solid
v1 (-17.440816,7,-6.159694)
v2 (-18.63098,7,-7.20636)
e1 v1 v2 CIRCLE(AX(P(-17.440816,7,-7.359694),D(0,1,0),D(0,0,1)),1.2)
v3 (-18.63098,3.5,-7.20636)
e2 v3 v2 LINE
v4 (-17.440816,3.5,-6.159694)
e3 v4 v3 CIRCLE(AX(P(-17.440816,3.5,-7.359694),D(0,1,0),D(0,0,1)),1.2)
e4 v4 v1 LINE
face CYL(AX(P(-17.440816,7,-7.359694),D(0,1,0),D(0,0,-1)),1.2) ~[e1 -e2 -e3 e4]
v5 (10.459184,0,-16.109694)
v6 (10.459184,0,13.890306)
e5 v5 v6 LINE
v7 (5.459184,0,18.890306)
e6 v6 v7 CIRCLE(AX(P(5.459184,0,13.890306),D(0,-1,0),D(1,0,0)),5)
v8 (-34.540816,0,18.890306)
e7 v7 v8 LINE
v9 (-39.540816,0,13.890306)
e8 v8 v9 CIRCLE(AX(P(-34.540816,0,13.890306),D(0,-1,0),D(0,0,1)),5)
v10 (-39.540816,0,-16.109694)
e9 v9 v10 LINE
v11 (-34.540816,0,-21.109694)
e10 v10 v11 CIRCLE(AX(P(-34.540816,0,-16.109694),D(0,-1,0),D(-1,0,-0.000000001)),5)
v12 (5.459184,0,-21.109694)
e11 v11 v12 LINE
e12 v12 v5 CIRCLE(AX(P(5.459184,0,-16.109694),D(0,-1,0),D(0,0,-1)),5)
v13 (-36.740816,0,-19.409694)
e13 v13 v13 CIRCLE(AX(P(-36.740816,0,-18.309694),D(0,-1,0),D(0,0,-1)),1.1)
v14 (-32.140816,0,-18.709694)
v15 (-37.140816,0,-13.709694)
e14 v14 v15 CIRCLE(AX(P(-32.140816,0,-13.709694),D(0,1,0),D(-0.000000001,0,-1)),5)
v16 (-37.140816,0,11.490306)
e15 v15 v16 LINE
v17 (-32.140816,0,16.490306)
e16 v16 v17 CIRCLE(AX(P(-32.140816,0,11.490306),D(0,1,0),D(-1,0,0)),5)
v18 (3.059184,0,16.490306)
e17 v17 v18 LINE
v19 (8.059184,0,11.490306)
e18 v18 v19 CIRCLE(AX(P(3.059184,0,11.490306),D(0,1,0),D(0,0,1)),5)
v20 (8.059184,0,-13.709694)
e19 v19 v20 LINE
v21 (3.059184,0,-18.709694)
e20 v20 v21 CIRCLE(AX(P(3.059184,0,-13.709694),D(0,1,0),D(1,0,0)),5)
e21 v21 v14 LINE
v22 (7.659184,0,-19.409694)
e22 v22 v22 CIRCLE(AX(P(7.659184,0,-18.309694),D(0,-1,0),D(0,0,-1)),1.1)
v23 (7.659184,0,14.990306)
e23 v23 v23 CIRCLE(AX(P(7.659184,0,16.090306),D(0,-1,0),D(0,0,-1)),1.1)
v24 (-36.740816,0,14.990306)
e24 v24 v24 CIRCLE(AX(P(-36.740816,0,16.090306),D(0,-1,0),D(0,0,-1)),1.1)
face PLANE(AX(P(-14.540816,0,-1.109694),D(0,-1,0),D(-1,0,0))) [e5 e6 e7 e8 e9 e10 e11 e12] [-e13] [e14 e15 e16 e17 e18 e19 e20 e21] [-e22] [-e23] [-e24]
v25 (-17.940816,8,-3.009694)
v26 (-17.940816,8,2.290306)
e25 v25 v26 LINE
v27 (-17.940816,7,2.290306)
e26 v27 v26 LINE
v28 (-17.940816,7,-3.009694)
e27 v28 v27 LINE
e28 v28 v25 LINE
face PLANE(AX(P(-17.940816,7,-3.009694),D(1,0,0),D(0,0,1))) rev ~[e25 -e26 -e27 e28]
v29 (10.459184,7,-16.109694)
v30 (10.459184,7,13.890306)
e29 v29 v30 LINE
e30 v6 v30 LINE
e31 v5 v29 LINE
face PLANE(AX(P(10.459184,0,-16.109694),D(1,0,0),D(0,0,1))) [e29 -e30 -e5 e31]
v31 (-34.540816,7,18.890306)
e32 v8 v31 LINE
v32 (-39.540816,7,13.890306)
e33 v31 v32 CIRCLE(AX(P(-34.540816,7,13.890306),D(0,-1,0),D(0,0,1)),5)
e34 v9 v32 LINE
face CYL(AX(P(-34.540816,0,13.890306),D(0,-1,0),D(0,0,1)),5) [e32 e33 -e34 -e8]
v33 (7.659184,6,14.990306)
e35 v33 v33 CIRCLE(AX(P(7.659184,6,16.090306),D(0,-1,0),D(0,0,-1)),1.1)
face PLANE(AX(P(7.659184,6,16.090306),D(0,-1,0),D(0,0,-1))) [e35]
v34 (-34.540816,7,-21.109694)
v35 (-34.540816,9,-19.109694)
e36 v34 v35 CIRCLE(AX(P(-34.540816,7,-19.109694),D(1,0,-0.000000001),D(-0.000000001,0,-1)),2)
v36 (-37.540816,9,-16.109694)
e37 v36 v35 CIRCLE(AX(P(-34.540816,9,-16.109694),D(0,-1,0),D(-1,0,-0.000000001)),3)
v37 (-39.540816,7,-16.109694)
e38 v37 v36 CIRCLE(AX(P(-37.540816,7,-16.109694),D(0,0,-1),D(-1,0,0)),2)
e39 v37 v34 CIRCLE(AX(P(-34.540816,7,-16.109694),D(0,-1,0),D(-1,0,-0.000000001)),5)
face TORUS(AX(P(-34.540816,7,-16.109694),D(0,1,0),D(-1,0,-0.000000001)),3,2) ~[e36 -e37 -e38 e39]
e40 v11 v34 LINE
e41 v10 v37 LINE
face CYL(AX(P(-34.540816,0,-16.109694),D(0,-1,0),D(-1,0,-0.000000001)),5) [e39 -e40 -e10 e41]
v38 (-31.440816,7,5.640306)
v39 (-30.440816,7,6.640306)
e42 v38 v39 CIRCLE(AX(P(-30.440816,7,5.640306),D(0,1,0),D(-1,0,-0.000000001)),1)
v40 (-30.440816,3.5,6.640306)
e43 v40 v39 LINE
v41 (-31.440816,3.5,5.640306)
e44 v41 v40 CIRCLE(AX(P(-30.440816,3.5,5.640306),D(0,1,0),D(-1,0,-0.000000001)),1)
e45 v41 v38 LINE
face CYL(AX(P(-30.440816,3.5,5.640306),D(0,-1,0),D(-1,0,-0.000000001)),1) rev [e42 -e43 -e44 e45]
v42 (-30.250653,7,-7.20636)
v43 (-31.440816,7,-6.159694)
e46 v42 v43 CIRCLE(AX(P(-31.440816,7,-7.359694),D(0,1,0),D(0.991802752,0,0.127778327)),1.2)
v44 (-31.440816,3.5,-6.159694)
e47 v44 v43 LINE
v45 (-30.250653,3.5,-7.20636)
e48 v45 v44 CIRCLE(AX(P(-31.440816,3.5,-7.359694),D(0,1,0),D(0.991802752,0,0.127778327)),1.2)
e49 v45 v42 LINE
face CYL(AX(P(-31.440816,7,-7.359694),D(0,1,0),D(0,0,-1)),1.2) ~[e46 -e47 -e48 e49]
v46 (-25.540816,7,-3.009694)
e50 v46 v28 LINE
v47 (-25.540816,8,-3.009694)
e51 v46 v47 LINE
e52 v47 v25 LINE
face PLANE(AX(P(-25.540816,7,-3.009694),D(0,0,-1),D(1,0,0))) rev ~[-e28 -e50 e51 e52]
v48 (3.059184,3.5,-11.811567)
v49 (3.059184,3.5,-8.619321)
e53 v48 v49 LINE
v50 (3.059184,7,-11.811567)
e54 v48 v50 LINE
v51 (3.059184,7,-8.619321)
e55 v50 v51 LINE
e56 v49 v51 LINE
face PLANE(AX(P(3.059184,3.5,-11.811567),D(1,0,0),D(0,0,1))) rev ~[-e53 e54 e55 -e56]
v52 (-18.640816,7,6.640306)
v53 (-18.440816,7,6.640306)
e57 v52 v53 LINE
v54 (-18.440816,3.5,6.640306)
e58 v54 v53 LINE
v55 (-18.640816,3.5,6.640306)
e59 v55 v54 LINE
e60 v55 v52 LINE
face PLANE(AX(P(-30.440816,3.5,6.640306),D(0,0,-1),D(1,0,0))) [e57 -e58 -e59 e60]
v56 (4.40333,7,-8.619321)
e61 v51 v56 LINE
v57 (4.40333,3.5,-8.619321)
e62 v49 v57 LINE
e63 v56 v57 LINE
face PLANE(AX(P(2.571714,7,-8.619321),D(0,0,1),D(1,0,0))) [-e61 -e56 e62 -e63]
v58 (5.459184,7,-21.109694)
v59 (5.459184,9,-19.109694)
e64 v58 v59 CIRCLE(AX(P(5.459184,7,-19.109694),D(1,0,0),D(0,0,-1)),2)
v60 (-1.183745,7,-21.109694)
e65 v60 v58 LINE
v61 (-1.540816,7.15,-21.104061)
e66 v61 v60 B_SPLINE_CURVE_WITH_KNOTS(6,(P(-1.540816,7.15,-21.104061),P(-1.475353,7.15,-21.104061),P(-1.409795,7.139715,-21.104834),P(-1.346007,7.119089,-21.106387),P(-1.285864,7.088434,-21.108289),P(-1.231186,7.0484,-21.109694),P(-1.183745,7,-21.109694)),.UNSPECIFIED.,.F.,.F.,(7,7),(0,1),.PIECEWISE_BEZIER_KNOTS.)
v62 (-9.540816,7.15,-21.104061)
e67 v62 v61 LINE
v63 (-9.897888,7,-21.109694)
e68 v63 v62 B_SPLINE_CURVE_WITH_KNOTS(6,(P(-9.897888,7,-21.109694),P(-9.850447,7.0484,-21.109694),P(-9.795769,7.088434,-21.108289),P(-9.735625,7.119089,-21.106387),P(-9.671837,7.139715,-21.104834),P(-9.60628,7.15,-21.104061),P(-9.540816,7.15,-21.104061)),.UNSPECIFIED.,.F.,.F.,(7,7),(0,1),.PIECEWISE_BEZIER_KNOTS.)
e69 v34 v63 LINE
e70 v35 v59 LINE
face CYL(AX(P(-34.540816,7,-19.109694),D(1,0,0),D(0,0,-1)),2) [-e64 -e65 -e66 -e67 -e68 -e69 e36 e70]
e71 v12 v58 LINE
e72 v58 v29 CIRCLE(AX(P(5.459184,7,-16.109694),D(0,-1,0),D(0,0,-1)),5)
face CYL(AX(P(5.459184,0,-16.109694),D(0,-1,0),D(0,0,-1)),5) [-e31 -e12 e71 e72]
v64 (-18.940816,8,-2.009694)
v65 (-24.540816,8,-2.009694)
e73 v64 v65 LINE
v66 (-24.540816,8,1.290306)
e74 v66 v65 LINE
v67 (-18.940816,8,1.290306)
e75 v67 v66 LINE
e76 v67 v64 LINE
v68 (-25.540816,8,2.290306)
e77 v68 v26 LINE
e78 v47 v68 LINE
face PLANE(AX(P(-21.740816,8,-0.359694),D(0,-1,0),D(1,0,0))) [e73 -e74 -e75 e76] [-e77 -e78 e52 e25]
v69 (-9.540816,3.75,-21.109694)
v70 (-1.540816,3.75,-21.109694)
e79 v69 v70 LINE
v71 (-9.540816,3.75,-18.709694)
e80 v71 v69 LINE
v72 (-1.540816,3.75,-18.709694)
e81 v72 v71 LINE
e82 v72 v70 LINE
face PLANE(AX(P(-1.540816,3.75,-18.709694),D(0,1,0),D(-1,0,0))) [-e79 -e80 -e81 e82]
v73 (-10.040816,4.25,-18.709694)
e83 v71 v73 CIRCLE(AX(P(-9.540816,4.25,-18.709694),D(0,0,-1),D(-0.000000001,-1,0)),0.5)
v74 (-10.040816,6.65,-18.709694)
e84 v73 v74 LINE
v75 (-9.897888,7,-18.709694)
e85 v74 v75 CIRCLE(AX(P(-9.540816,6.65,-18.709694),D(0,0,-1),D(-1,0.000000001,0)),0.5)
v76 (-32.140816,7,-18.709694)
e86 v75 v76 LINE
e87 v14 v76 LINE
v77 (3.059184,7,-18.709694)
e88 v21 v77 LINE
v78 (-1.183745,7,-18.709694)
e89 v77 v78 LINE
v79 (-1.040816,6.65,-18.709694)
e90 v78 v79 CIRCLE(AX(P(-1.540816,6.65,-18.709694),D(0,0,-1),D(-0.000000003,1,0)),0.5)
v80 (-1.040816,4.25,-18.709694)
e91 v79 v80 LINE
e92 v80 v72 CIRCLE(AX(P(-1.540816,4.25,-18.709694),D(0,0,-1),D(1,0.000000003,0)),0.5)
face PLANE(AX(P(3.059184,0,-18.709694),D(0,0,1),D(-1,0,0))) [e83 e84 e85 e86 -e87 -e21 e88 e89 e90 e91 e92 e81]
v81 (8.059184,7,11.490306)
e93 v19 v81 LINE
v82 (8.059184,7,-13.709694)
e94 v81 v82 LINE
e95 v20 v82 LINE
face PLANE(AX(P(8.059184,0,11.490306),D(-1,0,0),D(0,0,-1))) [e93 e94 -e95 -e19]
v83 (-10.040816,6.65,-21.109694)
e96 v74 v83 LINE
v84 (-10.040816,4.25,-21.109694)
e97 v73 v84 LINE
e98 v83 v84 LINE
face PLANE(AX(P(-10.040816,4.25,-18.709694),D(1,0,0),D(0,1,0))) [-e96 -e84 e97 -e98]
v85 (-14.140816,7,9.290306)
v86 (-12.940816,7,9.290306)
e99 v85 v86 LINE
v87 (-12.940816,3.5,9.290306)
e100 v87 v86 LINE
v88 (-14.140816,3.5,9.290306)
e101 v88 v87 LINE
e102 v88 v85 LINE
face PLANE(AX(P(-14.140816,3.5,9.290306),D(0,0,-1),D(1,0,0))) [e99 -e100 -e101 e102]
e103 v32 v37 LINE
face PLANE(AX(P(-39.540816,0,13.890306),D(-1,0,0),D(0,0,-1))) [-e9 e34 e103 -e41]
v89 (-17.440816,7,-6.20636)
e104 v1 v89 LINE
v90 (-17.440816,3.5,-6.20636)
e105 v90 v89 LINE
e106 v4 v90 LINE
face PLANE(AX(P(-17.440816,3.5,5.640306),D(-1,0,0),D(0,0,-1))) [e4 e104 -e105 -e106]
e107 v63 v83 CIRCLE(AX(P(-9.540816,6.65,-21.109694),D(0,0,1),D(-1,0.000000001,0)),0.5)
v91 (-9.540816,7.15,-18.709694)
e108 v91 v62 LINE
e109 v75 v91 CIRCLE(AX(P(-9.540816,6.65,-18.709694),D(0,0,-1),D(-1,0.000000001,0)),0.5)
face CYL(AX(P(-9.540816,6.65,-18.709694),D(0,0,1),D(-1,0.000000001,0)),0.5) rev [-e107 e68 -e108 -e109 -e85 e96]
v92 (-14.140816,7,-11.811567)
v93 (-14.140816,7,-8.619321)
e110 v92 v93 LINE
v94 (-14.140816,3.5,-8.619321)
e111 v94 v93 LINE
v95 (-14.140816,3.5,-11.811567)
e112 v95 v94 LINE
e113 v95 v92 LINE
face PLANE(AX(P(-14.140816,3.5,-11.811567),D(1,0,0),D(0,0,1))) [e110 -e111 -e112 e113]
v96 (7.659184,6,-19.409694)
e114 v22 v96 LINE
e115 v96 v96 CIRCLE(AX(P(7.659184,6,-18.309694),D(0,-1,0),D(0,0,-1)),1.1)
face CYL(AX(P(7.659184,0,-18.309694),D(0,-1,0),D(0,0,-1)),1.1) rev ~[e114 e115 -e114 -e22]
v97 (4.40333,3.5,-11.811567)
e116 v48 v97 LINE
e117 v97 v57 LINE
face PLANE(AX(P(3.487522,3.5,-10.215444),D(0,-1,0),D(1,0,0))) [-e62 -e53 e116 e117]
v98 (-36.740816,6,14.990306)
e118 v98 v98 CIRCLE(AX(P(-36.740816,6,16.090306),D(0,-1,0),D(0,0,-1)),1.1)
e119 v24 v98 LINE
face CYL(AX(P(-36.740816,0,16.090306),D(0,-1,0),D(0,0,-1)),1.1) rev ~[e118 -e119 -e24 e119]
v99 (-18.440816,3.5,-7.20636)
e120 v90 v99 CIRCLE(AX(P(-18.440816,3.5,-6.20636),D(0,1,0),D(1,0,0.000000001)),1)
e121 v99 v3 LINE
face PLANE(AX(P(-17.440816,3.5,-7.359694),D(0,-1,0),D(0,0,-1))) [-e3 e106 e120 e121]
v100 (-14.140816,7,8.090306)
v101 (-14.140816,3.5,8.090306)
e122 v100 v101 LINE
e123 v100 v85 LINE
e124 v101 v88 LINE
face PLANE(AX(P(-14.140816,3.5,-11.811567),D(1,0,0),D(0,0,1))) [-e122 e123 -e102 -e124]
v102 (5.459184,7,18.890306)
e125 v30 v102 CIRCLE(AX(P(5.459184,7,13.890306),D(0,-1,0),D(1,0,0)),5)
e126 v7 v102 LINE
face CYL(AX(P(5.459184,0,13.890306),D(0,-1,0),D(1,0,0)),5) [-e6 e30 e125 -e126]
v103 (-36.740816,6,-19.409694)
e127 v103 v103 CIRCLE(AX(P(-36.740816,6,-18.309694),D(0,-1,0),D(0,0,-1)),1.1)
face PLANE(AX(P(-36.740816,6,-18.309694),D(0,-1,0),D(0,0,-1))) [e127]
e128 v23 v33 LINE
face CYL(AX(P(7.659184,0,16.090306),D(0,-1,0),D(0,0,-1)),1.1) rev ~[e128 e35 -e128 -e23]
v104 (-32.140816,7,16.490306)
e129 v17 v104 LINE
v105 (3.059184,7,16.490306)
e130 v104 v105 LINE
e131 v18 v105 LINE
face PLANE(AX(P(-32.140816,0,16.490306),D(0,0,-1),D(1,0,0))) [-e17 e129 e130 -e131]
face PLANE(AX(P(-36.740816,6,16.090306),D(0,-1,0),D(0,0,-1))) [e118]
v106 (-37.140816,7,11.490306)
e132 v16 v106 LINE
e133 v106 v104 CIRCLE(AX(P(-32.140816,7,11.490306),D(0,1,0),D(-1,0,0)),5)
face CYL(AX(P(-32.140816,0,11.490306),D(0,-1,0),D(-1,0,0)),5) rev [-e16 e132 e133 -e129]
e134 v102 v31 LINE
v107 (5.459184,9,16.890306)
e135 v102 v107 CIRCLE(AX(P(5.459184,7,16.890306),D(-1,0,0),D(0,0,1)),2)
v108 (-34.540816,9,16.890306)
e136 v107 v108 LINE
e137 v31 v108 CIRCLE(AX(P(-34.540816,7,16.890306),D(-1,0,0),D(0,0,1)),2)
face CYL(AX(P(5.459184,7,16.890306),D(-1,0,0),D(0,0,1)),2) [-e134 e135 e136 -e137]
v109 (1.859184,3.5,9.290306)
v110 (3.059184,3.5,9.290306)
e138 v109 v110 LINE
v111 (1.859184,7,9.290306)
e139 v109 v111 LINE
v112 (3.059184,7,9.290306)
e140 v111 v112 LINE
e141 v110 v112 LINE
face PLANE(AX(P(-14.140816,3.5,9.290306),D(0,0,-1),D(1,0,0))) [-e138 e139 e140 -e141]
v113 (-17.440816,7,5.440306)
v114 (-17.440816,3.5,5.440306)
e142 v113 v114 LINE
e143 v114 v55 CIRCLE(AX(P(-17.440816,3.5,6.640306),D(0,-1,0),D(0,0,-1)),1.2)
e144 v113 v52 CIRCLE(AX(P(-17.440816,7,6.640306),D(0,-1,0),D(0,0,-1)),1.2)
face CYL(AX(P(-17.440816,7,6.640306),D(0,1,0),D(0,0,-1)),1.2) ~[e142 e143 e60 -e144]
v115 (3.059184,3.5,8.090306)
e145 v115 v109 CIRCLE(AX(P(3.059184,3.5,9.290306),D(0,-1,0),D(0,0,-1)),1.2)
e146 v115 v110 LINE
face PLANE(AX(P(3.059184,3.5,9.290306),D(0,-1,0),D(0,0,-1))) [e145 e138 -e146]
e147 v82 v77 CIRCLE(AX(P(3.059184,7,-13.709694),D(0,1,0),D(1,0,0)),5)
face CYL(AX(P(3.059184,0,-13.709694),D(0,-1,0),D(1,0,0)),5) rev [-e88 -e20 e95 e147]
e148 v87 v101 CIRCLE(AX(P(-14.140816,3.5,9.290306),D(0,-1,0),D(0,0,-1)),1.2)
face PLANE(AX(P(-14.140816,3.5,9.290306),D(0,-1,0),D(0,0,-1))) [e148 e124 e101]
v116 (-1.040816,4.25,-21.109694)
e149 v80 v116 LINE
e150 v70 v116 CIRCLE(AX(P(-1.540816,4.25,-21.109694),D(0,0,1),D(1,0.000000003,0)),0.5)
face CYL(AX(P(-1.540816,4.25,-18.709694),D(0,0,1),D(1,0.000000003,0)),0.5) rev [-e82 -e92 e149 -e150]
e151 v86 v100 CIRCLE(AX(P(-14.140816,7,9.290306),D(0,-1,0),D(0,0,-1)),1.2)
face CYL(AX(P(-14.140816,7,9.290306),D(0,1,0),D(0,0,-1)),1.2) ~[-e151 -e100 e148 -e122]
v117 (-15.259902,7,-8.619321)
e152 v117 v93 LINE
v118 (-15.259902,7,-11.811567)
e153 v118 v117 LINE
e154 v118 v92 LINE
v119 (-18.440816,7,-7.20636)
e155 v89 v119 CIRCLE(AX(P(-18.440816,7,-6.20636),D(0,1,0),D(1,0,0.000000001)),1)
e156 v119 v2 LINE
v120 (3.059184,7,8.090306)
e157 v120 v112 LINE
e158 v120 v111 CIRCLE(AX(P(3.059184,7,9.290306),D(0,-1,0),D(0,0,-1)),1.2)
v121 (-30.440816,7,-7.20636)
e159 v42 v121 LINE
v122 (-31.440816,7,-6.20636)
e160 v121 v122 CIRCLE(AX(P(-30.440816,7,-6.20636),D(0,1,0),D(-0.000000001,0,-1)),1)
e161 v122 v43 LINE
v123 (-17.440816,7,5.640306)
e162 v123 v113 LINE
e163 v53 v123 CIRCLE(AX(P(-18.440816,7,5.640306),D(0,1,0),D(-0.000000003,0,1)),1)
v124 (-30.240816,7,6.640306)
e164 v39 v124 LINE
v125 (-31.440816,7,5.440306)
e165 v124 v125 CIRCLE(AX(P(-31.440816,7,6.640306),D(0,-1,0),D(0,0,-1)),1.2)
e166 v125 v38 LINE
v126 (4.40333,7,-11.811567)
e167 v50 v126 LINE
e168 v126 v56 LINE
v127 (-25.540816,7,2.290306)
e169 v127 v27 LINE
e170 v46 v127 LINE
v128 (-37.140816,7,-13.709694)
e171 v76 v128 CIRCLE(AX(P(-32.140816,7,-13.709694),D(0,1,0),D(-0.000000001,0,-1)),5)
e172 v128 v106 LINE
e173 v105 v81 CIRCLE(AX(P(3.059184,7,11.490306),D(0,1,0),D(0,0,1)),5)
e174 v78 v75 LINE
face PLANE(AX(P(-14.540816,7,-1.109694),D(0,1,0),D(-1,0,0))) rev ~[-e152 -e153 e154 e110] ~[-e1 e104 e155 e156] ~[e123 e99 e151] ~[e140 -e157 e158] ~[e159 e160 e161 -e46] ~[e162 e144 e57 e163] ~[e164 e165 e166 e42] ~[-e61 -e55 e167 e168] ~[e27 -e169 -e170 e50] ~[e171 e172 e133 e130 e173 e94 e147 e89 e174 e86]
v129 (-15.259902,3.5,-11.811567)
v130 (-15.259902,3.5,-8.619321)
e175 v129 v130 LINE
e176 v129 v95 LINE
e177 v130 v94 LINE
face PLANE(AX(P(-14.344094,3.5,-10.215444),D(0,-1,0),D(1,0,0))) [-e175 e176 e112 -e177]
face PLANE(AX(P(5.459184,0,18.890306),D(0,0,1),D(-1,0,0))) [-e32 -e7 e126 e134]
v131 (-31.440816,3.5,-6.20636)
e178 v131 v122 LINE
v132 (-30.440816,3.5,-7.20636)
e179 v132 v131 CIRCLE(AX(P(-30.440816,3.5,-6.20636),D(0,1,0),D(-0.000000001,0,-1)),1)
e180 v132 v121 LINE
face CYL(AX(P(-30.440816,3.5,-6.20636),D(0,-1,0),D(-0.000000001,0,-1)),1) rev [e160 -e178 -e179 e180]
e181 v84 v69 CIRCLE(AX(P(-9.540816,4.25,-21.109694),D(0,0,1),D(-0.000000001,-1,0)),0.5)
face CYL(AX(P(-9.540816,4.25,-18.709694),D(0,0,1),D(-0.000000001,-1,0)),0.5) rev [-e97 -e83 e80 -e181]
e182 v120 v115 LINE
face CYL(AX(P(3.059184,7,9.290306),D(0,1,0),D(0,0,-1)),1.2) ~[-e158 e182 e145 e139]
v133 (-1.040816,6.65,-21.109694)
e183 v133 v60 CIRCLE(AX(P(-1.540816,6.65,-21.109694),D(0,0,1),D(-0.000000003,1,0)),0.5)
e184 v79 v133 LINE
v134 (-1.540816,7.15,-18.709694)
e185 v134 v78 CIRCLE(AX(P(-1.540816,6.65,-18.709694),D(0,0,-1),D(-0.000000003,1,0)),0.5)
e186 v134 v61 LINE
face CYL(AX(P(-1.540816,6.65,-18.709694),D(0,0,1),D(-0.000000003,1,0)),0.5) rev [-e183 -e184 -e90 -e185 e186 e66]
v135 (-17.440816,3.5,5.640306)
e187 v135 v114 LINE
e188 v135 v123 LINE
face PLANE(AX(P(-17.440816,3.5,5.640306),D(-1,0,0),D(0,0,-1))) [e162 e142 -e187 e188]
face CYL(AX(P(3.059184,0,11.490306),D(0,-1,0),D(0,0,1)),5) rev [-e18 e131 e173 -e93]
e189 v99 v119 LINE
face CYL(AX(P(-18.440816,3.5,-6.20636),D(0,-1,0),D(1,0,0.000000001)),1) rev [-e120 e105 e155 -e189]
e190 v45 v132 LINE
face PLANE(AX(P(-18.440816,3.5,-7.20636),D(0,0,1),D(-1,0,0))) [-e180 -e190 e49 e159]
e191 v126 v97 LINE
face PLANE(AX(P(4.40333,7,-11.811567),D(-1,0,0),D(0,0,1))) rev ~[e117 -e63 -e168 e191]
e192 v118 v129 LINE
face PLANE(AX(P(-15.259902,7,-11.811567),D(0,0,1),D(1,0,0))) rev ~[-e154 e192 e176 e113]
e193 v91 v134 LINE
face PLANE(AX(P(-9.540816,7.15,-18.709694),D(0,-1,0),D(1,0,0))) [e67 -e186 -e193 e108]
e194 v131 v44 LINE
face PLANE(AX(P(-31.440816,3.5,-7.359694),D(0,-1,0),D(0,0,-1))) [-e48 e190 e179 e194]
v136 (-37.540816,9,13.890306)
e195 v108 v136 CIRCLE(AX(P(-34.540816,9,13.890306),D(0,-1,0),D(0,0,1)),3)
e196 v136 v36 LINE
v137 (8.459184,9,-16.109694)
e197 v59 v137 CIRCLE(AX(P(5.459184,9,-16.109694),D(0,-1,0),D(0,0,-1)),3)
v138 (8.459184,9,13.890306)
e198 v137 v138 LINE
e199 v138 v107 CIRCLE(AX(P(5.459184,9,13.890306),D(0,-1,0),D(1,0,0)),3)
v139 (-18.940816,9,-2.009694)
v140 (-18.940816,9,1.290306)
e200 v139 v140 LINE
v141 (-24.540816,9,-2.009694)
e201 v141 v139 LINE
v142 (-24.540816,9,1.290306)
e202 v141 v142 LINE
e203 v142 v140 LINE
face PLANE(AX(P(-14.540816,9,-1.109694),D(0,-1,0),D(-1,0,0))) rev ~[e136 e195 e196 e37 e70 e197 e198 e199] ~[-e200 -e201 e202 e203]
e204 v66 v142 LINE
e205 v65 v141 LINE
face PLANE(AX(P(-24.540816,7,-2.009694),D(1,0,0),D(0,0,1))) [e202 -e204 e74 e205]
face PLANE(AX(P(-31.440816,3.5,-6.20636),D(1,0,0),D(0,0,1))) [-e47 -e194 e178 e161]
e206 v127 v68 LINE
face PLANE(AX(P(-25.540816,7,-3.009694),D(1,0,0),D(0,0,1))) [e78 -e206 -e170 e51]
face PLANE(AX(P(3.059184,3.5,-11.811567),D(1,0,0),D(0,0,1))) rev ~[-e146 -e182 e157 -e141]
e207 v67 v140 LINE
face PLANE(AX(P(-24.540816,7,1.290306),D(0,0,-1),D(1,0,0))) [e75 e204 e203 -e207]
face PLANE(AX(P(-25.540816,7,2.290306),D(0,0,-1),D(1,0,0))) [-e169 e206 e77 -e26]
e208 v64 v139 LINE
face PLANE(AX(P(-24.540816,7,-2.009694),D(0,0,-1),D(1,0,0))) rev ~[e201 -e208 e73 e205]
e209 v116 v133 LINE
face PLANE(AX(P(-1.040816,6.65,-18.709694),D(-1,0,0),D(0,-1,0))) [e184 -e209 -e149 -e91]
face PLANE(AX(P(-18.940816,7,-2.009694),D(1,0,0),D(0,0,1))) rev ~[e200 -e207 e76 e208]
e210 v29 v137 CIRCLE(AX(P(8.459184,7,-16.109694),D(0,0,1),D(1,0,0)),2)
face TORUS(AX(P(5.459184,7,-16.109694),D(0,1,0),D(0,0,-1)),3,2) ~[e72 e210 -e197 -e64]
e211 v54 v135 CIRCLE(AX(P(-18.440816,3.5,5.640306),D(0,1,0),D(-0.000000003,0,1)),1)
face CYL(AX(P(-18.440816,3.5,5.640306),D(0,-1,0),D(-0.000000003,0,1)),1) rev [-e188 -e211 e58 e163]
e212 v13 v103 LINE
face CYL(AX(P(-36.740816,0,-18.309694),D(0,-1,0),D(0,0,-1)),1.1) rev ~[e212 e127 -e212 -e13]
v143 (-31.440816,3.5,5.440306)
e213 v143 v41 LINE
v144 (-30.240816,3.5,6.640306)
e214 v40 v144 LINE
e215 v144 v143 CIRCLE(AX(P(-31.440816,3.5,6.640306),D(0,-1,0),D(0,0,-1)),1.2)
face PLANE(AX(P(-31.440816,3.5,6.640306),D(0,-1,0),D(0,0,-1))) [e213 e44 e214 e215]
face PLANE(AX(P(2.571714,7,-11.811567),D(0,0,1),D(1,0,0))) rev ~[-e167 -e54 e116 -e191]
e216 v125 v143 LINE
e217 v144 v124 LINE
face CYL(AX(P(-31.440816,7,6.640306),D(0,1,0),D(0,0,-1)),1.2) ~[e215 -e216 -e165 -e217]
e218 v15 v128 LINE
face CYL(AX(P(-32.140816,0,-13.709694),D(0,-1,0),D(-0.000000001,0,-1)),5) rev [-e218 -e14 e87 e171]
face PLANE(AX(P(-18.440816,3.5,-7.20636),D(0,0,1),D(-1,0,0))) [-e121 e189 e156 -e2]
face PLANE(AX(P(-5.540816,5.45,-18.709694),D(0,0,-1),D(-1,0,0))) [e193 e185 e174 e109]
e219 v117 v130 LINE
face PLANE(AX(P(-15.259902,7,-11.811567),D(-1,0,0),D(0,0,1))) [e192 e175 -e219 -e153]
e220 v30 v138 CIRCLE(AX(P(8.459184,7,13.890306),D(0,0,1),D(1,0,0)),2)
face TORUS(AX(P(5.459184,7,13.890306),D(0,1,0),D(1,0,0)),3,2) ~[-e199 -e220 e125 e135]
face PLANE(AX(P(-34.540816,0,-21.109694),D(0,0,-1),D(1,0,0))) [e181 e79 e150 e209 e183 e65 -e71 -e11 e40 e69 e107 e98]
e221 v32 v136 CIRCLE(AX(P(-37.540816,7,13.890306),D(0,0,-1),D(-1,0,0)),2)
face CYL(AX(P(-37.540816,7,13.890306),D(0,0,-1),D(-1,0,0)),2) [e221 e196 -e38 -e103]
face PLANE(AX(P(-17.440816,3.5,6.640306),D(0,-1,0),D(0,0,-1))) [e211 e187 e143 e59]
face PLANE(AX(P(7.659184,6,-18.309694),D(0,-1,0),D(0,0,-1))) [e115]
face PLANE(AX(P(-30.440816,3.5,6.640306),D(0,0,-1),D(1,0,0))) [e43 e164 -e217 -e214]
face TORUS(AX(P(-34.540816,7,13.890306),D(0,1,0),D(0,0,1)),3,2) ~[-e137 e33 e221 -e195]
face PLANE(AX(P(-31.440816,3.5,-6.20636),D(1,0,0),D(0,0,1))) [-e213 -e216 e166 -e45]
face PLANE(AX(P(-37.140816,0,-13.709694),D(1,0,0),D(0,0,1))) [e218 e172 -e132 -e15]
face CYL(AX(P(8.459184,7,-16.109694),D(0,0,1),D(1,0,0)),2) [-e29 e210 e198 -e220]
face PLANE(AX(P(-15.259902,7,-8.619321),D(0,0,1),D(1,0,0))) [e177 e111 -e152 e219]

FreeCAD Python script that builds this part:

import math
import FreeCAD as App
import Part
import Sketcher
Q = App.Units.Quantity


def edges_at(feature, points):
    """Names of the edges that pass closest to the given points."""
    edges = feature.Shape.Edges
    near = lambda p: min(range(len(edges)), key=lambda i: edges[i].distToShape(Part.Vertex(*p))[0])
    return sorted({f"Edge{near(p) + 1}" for p in points})

doc = App.newDocument("Part")
params = doc.addObject("Spreadsheet::Sheet", "Params")
for row, (alias, value) in enumerate([
    ("sketch1_radius", "5 mm"),
    ("sketch1_width", "40 mm"),
    ("sketch1_height", "30 mm"),
    ("pad1_length", "9 mm"),
    ("fillet_radius", "2 mm"),
    ("sketch2_radius", "5 mm"),
    ("sketch2_width", "35.2 mm"),
    ("sketch2_height", "25.2 mm"),
    ("pocket1_length", "7 mm"),
    ("sketch3_diameter", "2.2 mm"),
    ("pocket2_length", "6 mm"),
    ("sketch4_width", "5.6 mm"),
    ("sketch4_height", "3.3 mm"),
    ("sketch5_width", "7.6 mm"),
    ("sketch5_height", "5.3 mm"),
    ("pocket4_length", "1 mm"),
    ("sketch6_diameter", "2.4 mm"),
    ("pad2_length", "3.5 mm"),
    ("sketch7_radius", "1 mm"),
    ("sketch7_width", "12 mm"),
    ("pocket5_length", "3.5 mm"),
    ("sketch8_diameter", "2.4 mm"),
    ("pad3_length", "3.5 mm"),
    ("sketch9_width", "17.2 mm"),
    ("pocket6_length", "3.5 mm"),
    ("sketch10_radius", "0.5 mm"),
    ("sketch10_width", "8 mm"),
    ("sketch10_height", "2.4 mm"),
    ("pocket7_length", "3.5 mm"),
], start=1):
    params.set(f"A{row}", alias)
    params.set(f"B{row}", "=" + value)
    params.setAlias(f"B{row}", alias)

body = doc.addObject("PartDesign::Body", "Body")

# Sketch on XZ plane
sketch1 = body.newObject("Sketcher::SketchObject", "Sketch")
sketch1.AttachmentSupport = (doc.getObject("XZ_Plane"), [""])
sketch1.MapMode = "FlatFace"
sketch1.addGeometry([
    Part.LineSegment(App.Vector(5, -21, 0), App.Vector(-35, -21, 0)),  # 0
    Part.ArcOfCircle(Part.Circle(App.Vector(-35, -16, 0), App.Vector(0, 0, 1), 5), math.radians(-180), math.radians(-90)),  # 1
    Part.LineSegment(App.Vector(-40, -16, 0), App.Vector(-40, 14, 0)),  # 2
    Part.ArcOfCircle(Part.Circle(App.Vector(-35, 14, 0), App.Vector(0, 0, 1), 5), math.radians(90), math.radians(180)),  # 3
    Part.LineSegment(App.Vector(-35, 19, 0), App.Vector(5, 19, 0)),  # 4
    Part.ArcOfCircle(Part.Circle(App.Vector(5, 14, 0), App.Vector(0, 0, 1), 5), math.radians(0), math.radians(90)),  # 5
    Part.LineSegment(App.Vector(10, 14, 0), App.Vector(10, -16, 0)),  # 6
    Part.ArcOfCircle(Part.Circle(App.Vector(5, -16, 0), App.Vector(0, 0, 1), 5), math.radians(-90), math.radians(0)),  # 7
], False)
sketch1.addConstraint([
    Sketcher.Constraint("Tangent", 0, 2, 1, 2),
    Sketcher.Constraint("Tangent", 1, 1, 2, 1),
    Sketcher.Constraint("Tangent", 2, 2, 3, 2),
    Sketcher.Constraint("Tangent", 3, 1, 4, 1),
    Sketcher.Constraint("Tangent", 4, 2, 5, 2),
    Sketcher.Constraint("Tangent", 5, 1, 6, 1),
    Sketcher.Constraint("Tangent", 6, 2, 7, 2),
    Sketcher.Constraint("Tangent", 7, 1, 0, 1),
    Sketcher.Constraint("Horizontal", 0),
    Sketcher.Constraint("Vertical", 2),
    Sketcher.Constraint("Horizontal", 4),
    Sketcher.Constraint("Vertical", 6),
    Sketcher.Constraint("Equal", 1, 3),
    Sketcher.Constraint("Equal", 3, 5),
    Sketcher.Constraint("Equal", 5, 7),
    Sketcher.Constraint("Radius", 1, Q("5 mm")),
    Sketcher.Constraint("DistanceX", 0, 2, 0, 1, Q("40 mm")),
    Sketcher.Constraint("DistanceY", 2, 1, 2, 2, Q("30 mm")),
    Sketcher.Constraint("DistanceX", 1, 3, -1, 1, Q("34.540816 mm")),
    Sketcher.Constraint("DistanceY", 1, 3, -1, 1, Q("16.109694 mm")),
])
sketch1.setExpression("Constraints[15]", "Params.sketch1_radius")
sketch1.setExpression("Constraints[16]", "Params.sketch1_width")
sketch1.setExpression("Constraints[17]", "Params.sketch1_height")
pad1 = body.newObject("PartDesign::Pad", "Pad")
pad1.Profile = sketch1
pad1.setExpression("Length", "Params.pad1_length")
pad1.Reversed = True
doc.recompute()

fillet = body.newObject("PartDesign::Fillet", "Fillet")
fillet.Base = (pad1, edges_at(pad1, [
    (8.995, 9, -19.645),
    (-14.541, 9, -21.11),
    (-38.076, 9, -19.645),
    (-39.541, 9, -1.11),
    (-38.076, 9, 17.426),
    (-14.541, 9, 18.89),
    (8.995, 9, 17.426),
    (10.459, 9, -1.11),
]))
fillet.setExpression("Radius", "Params.fillet_radius")

# Sketch on XZ plane
sketch2 = body.newObject("Sketcher::SketchObject", "Sketch001")
sketch2.AttachmentSupport = (doc.getObject("XZ_Plane"), [""])
sketch2.MapMode = "FlatFace"
sketch2.addGeometry([
    Part.LineSegment(App.Vector(3, 16, 0), App.Vector(-32, 16, 0)),  # 0
    Part.ArcOfCircle(Part.Circle(App.Vector(-32, 11, 0), App.Vector(0, 0, 1), 5), math.radians(90), math.radians(180)),  # 1
    Part.LineSegment(App.Vector(-37, 11, 0), App.Vector(-37, -14, 0)),  # 2
    Part.ArcOfCircle(Part.Circle(App.Vector(-32, -14, 0), App.Vector(0, 0, 1), 5), math.radians(-180), math.radians(-90)),  # 3
    Part.LineSegment(App.Vector(-32, -19, 0), App.Vector(3, -19, 0)),  # 4
    Part.ArcOfCircle(Part.Circle(App.Vector(3, -14, 0), App.Vector(0, 0, 1), 5), math.radians(-90), math.radians(0)),  # 5
    Part.LineSegment(App.Vector(8, -14, 0), App.Vector(8, 11, 0)),  # 6
    Part.ArcOfCircle(Part.Circle(App.Vector(3, 11, 0), App.Vector(0, 0, 1), 5), math.radians(0), math.radians(90)),  # 7
], False)
sketch2.addConstraint([
    Sketcher.Constraint("Tangent", 0, 2, 1, 1),
    Sketcher.Constraint("Tangent", 1, 2, 2, 1),
    Sketcher.Constraint("Tangent", 2, 2, 3, 1),
    Sketcher.Constraint("Tangent", 3, 2, 4, 1),
    Sketcher.Constraint("Tangent", 4, 2, 5, 1),
    Sketcher.Constraint("Tangent", 5, 2, 6, 1),
    Sketcher.Constraint("Tangent", 6, 2, 7, 1),
    Sketcher.Constraint("Tangent", 7, 2, 0, 1),
    Sketcher.Constraint("Horizontal", 0),
    Sketcher.Constraint("Vertical", 2),
    Sketcher.Constraint("Horizontal", 4),
    Sketcher.Constraint("Vertical", 6),
    Sketcher.Constraint("Equal", 1, 3),
    Sketcher.Constraint("Equal", 3, 5),
    Sketcher.Constraint("Equal", 5, 7),
    Sketcher.Constraint("Radius", 1, Q("5 mm")),
    Sketcher.Constraint("DistanceX", 0, 2, 0, 1, Q("35.2 mm")),
    Sketcher.Constraint("DistanceY", 2, 2, 2, 1, Q("25.2 mm")),
    Sketcher.Constraint("DistanceX", 1, 3, -1, 1, Q("32.140816 mm")),
    Sketcher.Constraint("DistanceY", -1, 1, 1, 3, Q("11.490306 mm")),
])
sketch2.setExpression("Constraints[15]", "Params.sketch2_radius")
sketch2.setExpression("Constraints[16]", "Params.sketch2_width")
sketch2.setExpression("Constraints[17]", "Params.sketch2_height")
pocket1 = body.newObject("PartDesign::Pocket", "Pocket")
pocket1.Profile = sketch2
pocket1.setExpression("Length", "Params.pocket1_length")

# Sketch on XZ plane
sketch3 = body.newObject("Sketcher::SketchObject", "Sketch002")
sketch3.AttachmentSupport = (doc.getObject("XZ_Plane"), [""])
sketch3.MapMode = "FlatFace"
sketch3.addGeometry([
    Part.Circle(App.Vector(7.7, 16.1, 0), App.Vector(0, 0, 1), 1.1),
    Part.Circle(App.Vector(-36.7, 16.1, 0), App.Vector(0, 0, 1), 1.1),
    Part.Circle(App.Vector(-36.7, -18.3, 0), App.Vector(0, 0, 1), 1.1),
    Part.Circle(App.Vector(7.7, -18.3, 0), App.Vector(0, 0, 1), 1.1),
], False)
sketch3.addConstraint([
    Sketcher.Constraint("Equal", 0, 1),
    Sketcher.Constraint("Equal", 1, 2),
    Sketcher.Constraint("Equal", 2, 3),
    Sketcher.Constraint("Horizontal", 0, 3, 1, 3),
    Sketcher.Constraint("Horizontal", 2, 3, 3, 3),
    Sketcher.Constraint("Vertical", 1, 3, 2, 3),
    Sketcher.Constraint("Vertical", 0, 3, 3, 3),
    Sketcher.Constraint("Diameter", 0, Q("2.2 mm")),
    Sketcher.Constraint("DistanceX", 1, 3, 0, 3, Q("44.4 mm")),
    Sketcher.Constraint("DistanceY", 2, 3, 1, 3, Q("34.4 mm")),
    Sketcher.Constraint("DistanceX", -1, 1, 0, 3, Q("7.659184 mm")),
    Sketcher.Constraint("DistanceY", -1, 1, 0, 3, Q("16.090306 mm")),
])
sketch3.setExpression("Constraints[7]", "Params.sketch3_diameter")
pocket2 = body.newObject("PartDesign::Pocket", "Pocket001")
pocket2.Profile = sketch3
pocket2.setExpression("Length", "Params.pocket2_length")

# Sketch on XZ plane
sketch4 = body.newObject("Sketcher::SketchObject", "Sketch003")
sketch4.AttachmentSupport = (doc.getObject("XZ_Plane"), [""])
sketch4.MapMode = "FlatFace"
sketch4.AttachmentOffset = App.Placement(App.Vector(0, 0, -7), App.Rotation())
sketch4.addGeometry([
    Part.LineSegment(App.Vector(-24.5, 1.3, 0), App.Vector(-24.5, -2, 0)),
    Part.LineSegment(App.Vector(-24.5, -2, 0), App.Vector(-18.9, -2, 0)),
    Part.LineSegment(App.Vector(-18.9, -2, 0), App.Vector(-18.9, 1.3, 0)),
    Part.LineSegment(App.Vector(-18.9, 1.3, 0), App.Vector(-24.5, 1.3, 0)),
], False)
sketch4.addConstraint([
    Sketcher.Constraint("Coincident", 0, 2, 1, 1),
    Sketcher.Constraint("Coincident", 1, 2, 2, 1),
    Sketcher.Constraint("Coincident", 2, 2, 3, 1),
    Sketcher.Constraint("Coincident", 3, 2, 0, 1),
    Sketcher.Constraint("Vertical", 0),
    Sketcher.Constraint("Horizontal", 1),
    Sketcher.Constraint("Vertical", 2),
    Sketcher.Constraint("Horizontal", 3),
    Sketcher.Constraint("DistanceX", 1, 1, 1, 2, Q("5.6 mm")),
    Sketcher.Constraint("DistanceY", 0, 2, 0, 1, Q("3.3 mm")),
    Sketcher.Constraint("DistanceX", 0, 2, -1, 1, Q("24.540816 mm")),
    Sketcher.Constraint("DistanceY", 0, 2, -1, 1, Q("2.009694 mm")),
])
sketch4.setExpression("Constraints[8]", "Params.sketch4_width")
sketch4.setExpression("Constraints[9]", "Params.sketch4_height")
pocket3 = body.newObject("PartDesign::Pocket", "Pocket002")
pocket3.Profile = sketch4
pocket3.Type = "ThroughAll"

# Sketch on XZ plane
sketch5 = body.newObject("Sketcher::SketchObject", "Sketch004")
sketch5.AttachmentSupport = (doc.getObject("XZ_Plane"), [""])
sketch5.MapMode = "FlatFace"
sketch5.AttachmentOffset = App.Placement(App.Vector(0, 0, -7), App.Rotation())
sketch5.addGeometry([
    Part.LineSegment(App.Vector(-26, 2, 0), App.Vector(-26, -3, 0)),
    Part.LineSegment(App.Vector(-26, -3, 0), App.Vector(-18, -3, 0)),
    Part.LineSegment(App.Vector(-18, -3, 0), App.Vector(-18, 2, 0)),
    Part.LineSegment(App.Vector(-18, 2, 0), App.Vector(-26, 2, 0)),
], False)
sketch5.addConstraint([
    Sketcher.Constraint("Coincident", 0, 2, 1, 1),
    Sketcher.Constraint("Coincident", 1, 2, 2, 1),
    Sketcher.Constraint("Coincident", 2, 2, 3, 1),
    Sketcher.Constraint("Coincident", 3, 2, 0, 1),
    Sketcher.Constraint("Vertical", 0),
    Sketcher.Constraint("Horizontal", 1),
    Sketcher.Constraint("Vertical", 2),
    Sketcher.Constraint("Horizontal", 3),
    Sketcher.Constraint("DistanceX", 1, 1, 1, 2, Q("7.6 mm")),
    Sketcher.Constraint("DistanceY", 0, 2, 0, 1, Q("5.3 mm")),
    Sketcher.Constraint("DistanceX", 0, 2, -1, 1, Q("25.540816 mm")),
    Sketcher.Constraint("DistanceY", 0, 2, -1, 1, Q("3.009694 mm")),
])
sketch5.setExpression("Constraints[8]", "Params.sketch5_width")
sketch5.setExpression("Constraints[9]", "Params.sketch5_height")
pocket4 = body.newObject("PartDesign::Pocket", "Pocket003")
pocket4.Profile = sketch5
pocket4.setExpression("Length", "Params.pocket4_length")

# Sketch on XZ plane
sketch6 = body.newObject("Sketcher::SketchObject", "Sketch005")
sketch6.AttachmentSupport = (doc.getObject("XZ_Plane"), [""])
sketch6.MapMode = "FlatFace"
sketch6.AttachmentOffset = App.Placement(App.Vector(0, 0, -7), App.Rotation())
sketch6.addGeometry([
    Part.Circle(App.Vector(-17.4, 6.6, 0), App.Vector(0, 0, 1), 1.2),
    Part.Circle(App.Vector(-31.4, 6.6, 0), App.Vector(0, 0, 1), 1.2),
    Part.Circle(App.Vector(-31.4, -7.4, 0), App.Vector(0, 0, 1), 1.2),
    Part.Circle(App.Vector(-17.4, -7.4, 0), App.Vector(0, 0, 1), 1.2),
], False)
sketch6.addConstraint([
    Sketcher.Constraint("Equal", 0, 1),
    Sketcher.Constraint("Equal", 1, 2),
    Sketcher.Constraint("Equal", 2, 3),
    Sketcher.Constraint("Horizontal", 0, 3, 1, 3),
    Sketcher.Constraint("Horizontal", 2, 3, 3, 3),
    Sketcher.Constraint("Vertical", 1, 3, 2, 3),
    Sketcher.Constraint("Vertical", 0, 3, 3, 3),
    Sketcher.Constraint("Diameter", 0, Q("2.4 mm")),
    Sketcher.Constraint("DistanceX", 1, 3, 0, 3, Q("14 mm")),
    Sketcher.Constraint("DistanceY", 2, 3, 1, 3, Q("14 mm")),
    Sketcher.Constraint("DistanceX", 0, 3, -1, 1, Q("17.440816 mm")),
    Sketcher.Constraint("DistanceY", -1, 1, 0, 3, Q("6.640306 mm")),
])
sketch6.setExpression("Constraints[7]", "Params.sketch6_diameter")
pad2 = body.newObject("PartDesign::Pad", "Pad001")
pad2.Profile = sketch6
pad2.setExpression("Length", "Params.pad2_length")

# Sketch on XZ plane
sketch7 = body.newObject("Sketcher::SketchObject", "Sketch006")
sketch7.AttachmentSupport = (doc.getObject("XZ_Plane"), [""])
sketch7.MapMode = "FlatFace"
sketch7.AttachmentOffset = App.Placement(App.Vector(0, 0, -3.5), App.Rotation())
sketch7.addGeometry([
    Part.LineSegment(App.Vector(-18.4, 6.6, 0), App.Vector(-30.4, 6.6, 0)),  # 0
    Part.ArcOfCircle(Part.Circle(App.Vector(-30.4, 5.6, 0), App.Vector(0, 0, 1), 1), math.radians(90), math.radians(180)),  # 1
    Part.LineSegment(App.Vector(-31.4, 5.6, 0), App.Vector(-31.4, -6.2, 0)),  # 2
    Part.ArcOfCircle(Part.Circle(App.Vector(-30.4, -6.2, 0), App.Vector(0, 0, 1), 1), math.radians(-180), math.radians(-90)),  # 3
    Part.LineSegment(App.Vector(-30.4, -7.2, 0), App.Vector(-18.4, -7.2, 0)),  # 4
    Part.ArcOfCircle(Part.Circle(App.Vector(-18.4, -6.2, 0), App.Vector(0, 0, 1), 1), math.radians(-90), math.radians(0)),  # 5
    Part.LineSegment(App.Vector(-17.4, -6.2, 0), App.Vector(-17.4, 5.6, 0)),  # 6
    Part.ArcOfCircle(Part.Circle(App.Vector(-18.4, 5.6, 0), App.Vector(0, 0, 1), 1), math.radians(0), math.radians(90)),  # 7
], False)
sketch7.addConstraint([
    Sketcher.Constraint("Tangent", 0, 2, 1, 1),
    Sketcher.Constraint("Tangent", 1, 2, 2, 1),
    Sketcher.Constraint("Tangent", 2, 2, 3, 1),
    Sketcher.Constraint("Tangent", 3, 2, 4, 1),
    Sketcher.Constraint("Tangent", 4, 2, 5, 1),
    Sketcher.Constraint("Tangent", 5, 2, 6, 1),
    Sketcher.Constraint("Tangent", 6, 2, 7, 1),
    Sketcher.Constraint("Tangent", 7, 2, 0, 1),
    Sketcher.Constraint("Horizontal", 0),
    Sketcher.Constraint("Vertical", 2),
    Sketcher.Constraint("Horizontal", 4),
    Sketcher.Constraint("Vertical", 6),
    Sketcher.Constraint("Equal", 1, 3),
    Sketcher.Constraint("Equal", 3, 5),
    Sketcher.Constraint("Equal", 5, 7),
    Sketcher.Constraint("Radius", 1, Q("1 mm")),
    Sketcher.Constraint("DistanceX", 0, 2, 0, 1, Q("12 mm")),
    Sketcher.Constraint("DistanceY", 2, 2, 2, 1, Q("11.846666 mm")),
    Sketcher.Constraint("DistanceY", 3, 3, -1, 1, Q("6.20636 mm")),
    Sketcher.Constraint("DistanceX", 1, 3, -1, 1, Q("30.440816 mm")),
])
sketch7.setExpression("Constraints[15]", "Params.sketch7_radius")
sketch7.setExpression("Constraints[16]", "Params.sketch7_width")
pocket5 = body.newObject("PartDesign::Pocket", "Pocket004")
pocket5.Profile = sketch7
pocket5.setExpression("Length", "Params.pocket5_length")

# Sketch on XZ plane
sketch8 = body.newObject("Sketcher::SketchObject", "Sketch007")
sketch8.AttachmentSupport = (doc.getObject("XZ_Plane"), [""])
sketch8.MapMode = "FlatFace"
sketch8.AttachmentOffset = App.Placement(App.Vector(0, 0, -7), App.Rotation())
sketch8.addGeometry([
    Part.Circle(App.Vector(3.1, 9.3, 0), App.Vector(0, 0, 1), 1.2),  # 0
    Part.Circle(App.Vector(-14.1, 9.3, 0), App.Vector(0, 0, 1), 1.2),  # 1
    Part.LineSegment(App.Vector(-15.3, -8.6, 0), App.Vector(-15.3, -11.8, 0)),  # 2
    Part.LineSegment(App.Vector(-15.3, -11.8, 0), App.Vector(-13.4, -11.8, 0)),  # 3
    Part.LineSegment(App.Vector(-13.4, -11.8, 0), App.Vector(-13.4, -8.6, 0)),  # 4
    Part.LineSegment(App.Vector(-13.4, -8.6, 0), App.Vector(-15.3, -8.6, 0)),  # 5
    Part.LineSegment(App.Vector(2.6, -8.6, 0), App.Vector(2.6, -11.8, 0)),  # 6
    Part.LineSegment(App.Vector(2.6, -11.8, 0), App.Vector(4.4, -11.8, 0)),  # 7
    Part.LineSegment(App.Vector(4.4, -11.8, 0), App.Vector(4.4, -8.6, 0)),  # 8
    Part.LineSegment(App.Vector(4.4, -8.6, 0), App.Vector(2.6, -8.6, 0)),  # 9
], False)
sketch8.addConstraint([
    Sketcher.Constraint("Coincident", 2, 2, 3, 1),
    Sketcher.Constraint("Coincident", 3, 2, 4, 1),
    Sketcher.Constraint("Coincident", 4, 2, 5, 1),
    Sketcher.Constraint("Coincident", 5, 2, 2, 1),
    Sketcher.Constraint("Coincident", 6, 2, 7, 1),
    Sketcher.Constraint("Coincident", 7, 2, 8, 1),
    Sketcher.Constraint("Coincident", 8, 2, 9, 1),
    Sketcher.Constraint("Coincident", 9, 2, 6, 1),
    Sketcher.Constraint("Vertical", 2),
    Sketcher.Constraint("Horizontal", 3),
    Sketcher.Constraint("Vertical", 4),
    Sketcher.Constraint("Horizontal", 5),
    Sketcher.Constraint("Vertical", 6),
    Sketcher.Constraint("Horizontal", 7),
    Sketcher.Constraint("Vertical", 8),
    Sketcher.Constraint("Horizontal", 9),
    Sketcher.Constraint("Equal", 0, 1),
    Sketcher.Constraint("Horizontal", 0, 3, 1, 3),
    Sketcher.Constraint("Horizontal", 3, 2, 6, 2),
    Sketcher.Constraint("Horizontal", 5, 2, 8, 2),
    Sketcher.Constraint("Equal", 5, 7),
    Sketcher.Constraint("Diameter", 0, Q("2.4 mm")),
    Sketcher.Constraint("DistanceX", 3, 2, 6, 2, Q("16 mm")),
    Sketcher.Constraint("DistanceX", 1, 3, 0, 3, Q("17.2 mm")),
    Sketcher.Constraint("DistanceX", 3, 1, 3, 2, Q("1.831616 mm")),
    Sketcher.Constraint("DistanceY", 2, 2, 2, 1, Q("3.192246 mm")),
    Sketcher.Constraint("DistanceY", 4, 2, -1, 1, Q("8.619321 mm")),
    Sketcher.Constraint("DistanceX", -1, 1, 7, 2, Q("4.40333 mm")),
    Sketcher.Constraint("DistanceX", 1, 3, 3, 2, Q("0.71253 mm")),
    Sketcher.Constraint("DistanceY", -1, 1, 0, 3, Q("9.290306 mm")),
])
sketch8.setExpression("Constraints[21]", "Params.sketch8_diameter")
pad3 = body.newObject("PartDesign::Pad", "Pad002")
pad3.Profile = sketch8
pad3.setExpression("Length", "Params.pad3_length")

# Sketch on XZ plane
sketch9 = body.newObject("Sketcher::SketchObject", "Sketch008")
sketch9.AttachmentSupport = (doc.getObject("XZ_Plane"), [""])
sketch9.MapMode = "FlatFace"
sketch9.AttachmentOffset = App.Placement(App.Vector(0, 0, -3.5), App.Rotation())
sketch9.addGeometry([
    Part.LineSegment(App.Vector(-14, 9, 0), App.Vector(-14, -12, 0)),
    Part.LineSegment(App.Vector(-14, -12, 0), App.Vector(3, -12, 0)),
    Part.LineSegment(App.Vector(3, -12, 0), App.Vector(3, 9, 0)),
    Part.LineSegment(App.Vector(3, 9, 0), App.Vector(-14, 9, 0)),
], False)
sketch9.addConstraint([
    Sketcher.Constraint("Coincident", 0, 2, 1, 1),
    Sketcher.Constraint("Coincident", 1, 2, 2, 1),
    Sketcher.Constraint("Coincident", 2, 2, 3, 1),
    Sketcher.Constraint("Coincident", 3, 2, 0, 1),
    Sketcher.Constraint("Vertical", 0),
    Sketcher.Constraint("Horizontal", 1),
    Sketcher.Constraint("Vertical", 2),
    Sketcher.Constraint("Horizontal", 3),
    Sketcher.Constraint("DistanceX", 1, 1, 1, 2, Q("17.2 mm")),
    Sketcher.Constraint("DistanceY", 0, 2, 0, 1, Q("21.101873 mm")),
    Sketcher.Constraint("DistanceX", 0, 2, -1, 1, Q("14.140816 mm")),
    Sketcher.Constraint("DistanceY", 0, 2, -1, 1, Q("11.811567 mm")),
])
sketch9.setExpression("Constraints[8]", "Params.sketch9_width")
pocket6 = body.newObject("PartDesign::Pocket", "Pocket005")
pocket6.Profile = sketch9
pocket6.setExpression("Length", "Params.pocket6_length")

# Sketch on XY plane
sketch10 = body.newObject("Sketcher::SketchObject", "Sketch009")
sketch10.AttachmentSupport = (doc.getObject("XY_Plane"), [""])
sketch10.MapMode = "FlatFace"
sketch10.AttachmentOffset = App.Placement(App.Vector(0, 0, -18.709694), App.Rotation())
sketch10.addGeometry([
    Part.LineSegment(App.Vector(-1.54, 7.15, 0), App.Vector(-9.54, 7.15, 0)),  # 0
    Part.ArcOfCircle(Part.Circle(App.Vector(-9.54, 6.65, 0), App.Vector(0, 0, 1), 0.5), math.radians(90), math.radians(180)),  # 1
    Part.LineSegment(App.Vector(-10.04, 6.65, 0), App.Vector(-10.04, 4.25, 0)),  # 2
    Part.ArcOfCircle(Part.Circle(App.Vector(-9.54, 4.25, 0), App.Vector(0, 0, 1), 0.5), math.radians(180), math.radians(270)),  # 3
    Part.LineSegment(App.Vector(-9.54, 3.75, 0), App.Vector(-1.54, 3.75, 0)),  # 4
    Part.ArcOfCircle(Part.Circle(App.Vector(-1.54, 4.25, 0), App.Vector(0, 0, 1), 0.5), math.radians(-90), math.radians(0)),  # 5
    Part.LineSegment(App.Vector(-1.04, 4.25, 0), App.Vector(-1.04, 6.65, 0)),  # 6
    Part.ArcOfCircle(Part.Circle(App.Vector(-1.54, 6.65, 0), App.Vector(0, 0, 1), 0.5), math.radians(0), math.radians(90)),  # 7
], False)
sketch10.addConstraint([
    Sketcher.Constraint("Tangent", 0, 2, 1, 1),
    Sketcher.Constraint("Tangent", 1, 2, 2, 1),
    Sketcher.Constraint("Tangent", 2, 2, 3, 1),
    Sketcher.Constraint("Tangent", 3, 2, 4, 1),
    Sketcher.Constraint("Tangent", 4, 2, 5, 1),
    Sketcher.Constraint("Tangent", 5, 2, 6, 1),
    Sketcher.Constraint("Tangent", 6, 2, 7, 1),
    Sketcher.Constraint("Tangent", 7, 2, 0, 1),
    Sketcher.Constraint("Horizontal", 0),
    Sketcher.Constraint("Vertical", 2),
    Sketcher.Constraint("Horizontal", 4),
    Sketcher.Constraint("Vertical", 6),
    Sketcher.Constraint("Equal", 1, 3),
    Sketcher.Constraint("Equal", 3, 5),
    Sketcher.Constraint("Equal", 5, 7),
    Sketcher.Constraint("Radius", 1, Q("0.5 mm")),
    Sketcher.Constraint("DistanceX", 0, 2, 0, 1, Q("8 mm")),
    Sketcher.Constraint("DistanceY", 2, 2, 2, 1, Q("2.4 mm")),
    Sketcher.Constraint("DistanceY", -1, 1, 1, 3, Q("6.65 mm")),
    Sketcher.Constraint("DistanceX", 1, 3, -1, 1, Q("9.540816 mm")),
])
sketch10.setExpression("Constraints[15]", "Params.sketch10_radius")
sketch10.setExpression("Constraints[16]", "Params.sketch10_width")
sketch10.setExpression("Constraints[17]", "Params.sketch10_height")
pocket7 = body.newObject("PartDesign::Pocket", "Pocket006")
pocket7.Profile = sketch10
pocket7.setExpression("Length", "Params.pocket7_length")

doc.recompute()
